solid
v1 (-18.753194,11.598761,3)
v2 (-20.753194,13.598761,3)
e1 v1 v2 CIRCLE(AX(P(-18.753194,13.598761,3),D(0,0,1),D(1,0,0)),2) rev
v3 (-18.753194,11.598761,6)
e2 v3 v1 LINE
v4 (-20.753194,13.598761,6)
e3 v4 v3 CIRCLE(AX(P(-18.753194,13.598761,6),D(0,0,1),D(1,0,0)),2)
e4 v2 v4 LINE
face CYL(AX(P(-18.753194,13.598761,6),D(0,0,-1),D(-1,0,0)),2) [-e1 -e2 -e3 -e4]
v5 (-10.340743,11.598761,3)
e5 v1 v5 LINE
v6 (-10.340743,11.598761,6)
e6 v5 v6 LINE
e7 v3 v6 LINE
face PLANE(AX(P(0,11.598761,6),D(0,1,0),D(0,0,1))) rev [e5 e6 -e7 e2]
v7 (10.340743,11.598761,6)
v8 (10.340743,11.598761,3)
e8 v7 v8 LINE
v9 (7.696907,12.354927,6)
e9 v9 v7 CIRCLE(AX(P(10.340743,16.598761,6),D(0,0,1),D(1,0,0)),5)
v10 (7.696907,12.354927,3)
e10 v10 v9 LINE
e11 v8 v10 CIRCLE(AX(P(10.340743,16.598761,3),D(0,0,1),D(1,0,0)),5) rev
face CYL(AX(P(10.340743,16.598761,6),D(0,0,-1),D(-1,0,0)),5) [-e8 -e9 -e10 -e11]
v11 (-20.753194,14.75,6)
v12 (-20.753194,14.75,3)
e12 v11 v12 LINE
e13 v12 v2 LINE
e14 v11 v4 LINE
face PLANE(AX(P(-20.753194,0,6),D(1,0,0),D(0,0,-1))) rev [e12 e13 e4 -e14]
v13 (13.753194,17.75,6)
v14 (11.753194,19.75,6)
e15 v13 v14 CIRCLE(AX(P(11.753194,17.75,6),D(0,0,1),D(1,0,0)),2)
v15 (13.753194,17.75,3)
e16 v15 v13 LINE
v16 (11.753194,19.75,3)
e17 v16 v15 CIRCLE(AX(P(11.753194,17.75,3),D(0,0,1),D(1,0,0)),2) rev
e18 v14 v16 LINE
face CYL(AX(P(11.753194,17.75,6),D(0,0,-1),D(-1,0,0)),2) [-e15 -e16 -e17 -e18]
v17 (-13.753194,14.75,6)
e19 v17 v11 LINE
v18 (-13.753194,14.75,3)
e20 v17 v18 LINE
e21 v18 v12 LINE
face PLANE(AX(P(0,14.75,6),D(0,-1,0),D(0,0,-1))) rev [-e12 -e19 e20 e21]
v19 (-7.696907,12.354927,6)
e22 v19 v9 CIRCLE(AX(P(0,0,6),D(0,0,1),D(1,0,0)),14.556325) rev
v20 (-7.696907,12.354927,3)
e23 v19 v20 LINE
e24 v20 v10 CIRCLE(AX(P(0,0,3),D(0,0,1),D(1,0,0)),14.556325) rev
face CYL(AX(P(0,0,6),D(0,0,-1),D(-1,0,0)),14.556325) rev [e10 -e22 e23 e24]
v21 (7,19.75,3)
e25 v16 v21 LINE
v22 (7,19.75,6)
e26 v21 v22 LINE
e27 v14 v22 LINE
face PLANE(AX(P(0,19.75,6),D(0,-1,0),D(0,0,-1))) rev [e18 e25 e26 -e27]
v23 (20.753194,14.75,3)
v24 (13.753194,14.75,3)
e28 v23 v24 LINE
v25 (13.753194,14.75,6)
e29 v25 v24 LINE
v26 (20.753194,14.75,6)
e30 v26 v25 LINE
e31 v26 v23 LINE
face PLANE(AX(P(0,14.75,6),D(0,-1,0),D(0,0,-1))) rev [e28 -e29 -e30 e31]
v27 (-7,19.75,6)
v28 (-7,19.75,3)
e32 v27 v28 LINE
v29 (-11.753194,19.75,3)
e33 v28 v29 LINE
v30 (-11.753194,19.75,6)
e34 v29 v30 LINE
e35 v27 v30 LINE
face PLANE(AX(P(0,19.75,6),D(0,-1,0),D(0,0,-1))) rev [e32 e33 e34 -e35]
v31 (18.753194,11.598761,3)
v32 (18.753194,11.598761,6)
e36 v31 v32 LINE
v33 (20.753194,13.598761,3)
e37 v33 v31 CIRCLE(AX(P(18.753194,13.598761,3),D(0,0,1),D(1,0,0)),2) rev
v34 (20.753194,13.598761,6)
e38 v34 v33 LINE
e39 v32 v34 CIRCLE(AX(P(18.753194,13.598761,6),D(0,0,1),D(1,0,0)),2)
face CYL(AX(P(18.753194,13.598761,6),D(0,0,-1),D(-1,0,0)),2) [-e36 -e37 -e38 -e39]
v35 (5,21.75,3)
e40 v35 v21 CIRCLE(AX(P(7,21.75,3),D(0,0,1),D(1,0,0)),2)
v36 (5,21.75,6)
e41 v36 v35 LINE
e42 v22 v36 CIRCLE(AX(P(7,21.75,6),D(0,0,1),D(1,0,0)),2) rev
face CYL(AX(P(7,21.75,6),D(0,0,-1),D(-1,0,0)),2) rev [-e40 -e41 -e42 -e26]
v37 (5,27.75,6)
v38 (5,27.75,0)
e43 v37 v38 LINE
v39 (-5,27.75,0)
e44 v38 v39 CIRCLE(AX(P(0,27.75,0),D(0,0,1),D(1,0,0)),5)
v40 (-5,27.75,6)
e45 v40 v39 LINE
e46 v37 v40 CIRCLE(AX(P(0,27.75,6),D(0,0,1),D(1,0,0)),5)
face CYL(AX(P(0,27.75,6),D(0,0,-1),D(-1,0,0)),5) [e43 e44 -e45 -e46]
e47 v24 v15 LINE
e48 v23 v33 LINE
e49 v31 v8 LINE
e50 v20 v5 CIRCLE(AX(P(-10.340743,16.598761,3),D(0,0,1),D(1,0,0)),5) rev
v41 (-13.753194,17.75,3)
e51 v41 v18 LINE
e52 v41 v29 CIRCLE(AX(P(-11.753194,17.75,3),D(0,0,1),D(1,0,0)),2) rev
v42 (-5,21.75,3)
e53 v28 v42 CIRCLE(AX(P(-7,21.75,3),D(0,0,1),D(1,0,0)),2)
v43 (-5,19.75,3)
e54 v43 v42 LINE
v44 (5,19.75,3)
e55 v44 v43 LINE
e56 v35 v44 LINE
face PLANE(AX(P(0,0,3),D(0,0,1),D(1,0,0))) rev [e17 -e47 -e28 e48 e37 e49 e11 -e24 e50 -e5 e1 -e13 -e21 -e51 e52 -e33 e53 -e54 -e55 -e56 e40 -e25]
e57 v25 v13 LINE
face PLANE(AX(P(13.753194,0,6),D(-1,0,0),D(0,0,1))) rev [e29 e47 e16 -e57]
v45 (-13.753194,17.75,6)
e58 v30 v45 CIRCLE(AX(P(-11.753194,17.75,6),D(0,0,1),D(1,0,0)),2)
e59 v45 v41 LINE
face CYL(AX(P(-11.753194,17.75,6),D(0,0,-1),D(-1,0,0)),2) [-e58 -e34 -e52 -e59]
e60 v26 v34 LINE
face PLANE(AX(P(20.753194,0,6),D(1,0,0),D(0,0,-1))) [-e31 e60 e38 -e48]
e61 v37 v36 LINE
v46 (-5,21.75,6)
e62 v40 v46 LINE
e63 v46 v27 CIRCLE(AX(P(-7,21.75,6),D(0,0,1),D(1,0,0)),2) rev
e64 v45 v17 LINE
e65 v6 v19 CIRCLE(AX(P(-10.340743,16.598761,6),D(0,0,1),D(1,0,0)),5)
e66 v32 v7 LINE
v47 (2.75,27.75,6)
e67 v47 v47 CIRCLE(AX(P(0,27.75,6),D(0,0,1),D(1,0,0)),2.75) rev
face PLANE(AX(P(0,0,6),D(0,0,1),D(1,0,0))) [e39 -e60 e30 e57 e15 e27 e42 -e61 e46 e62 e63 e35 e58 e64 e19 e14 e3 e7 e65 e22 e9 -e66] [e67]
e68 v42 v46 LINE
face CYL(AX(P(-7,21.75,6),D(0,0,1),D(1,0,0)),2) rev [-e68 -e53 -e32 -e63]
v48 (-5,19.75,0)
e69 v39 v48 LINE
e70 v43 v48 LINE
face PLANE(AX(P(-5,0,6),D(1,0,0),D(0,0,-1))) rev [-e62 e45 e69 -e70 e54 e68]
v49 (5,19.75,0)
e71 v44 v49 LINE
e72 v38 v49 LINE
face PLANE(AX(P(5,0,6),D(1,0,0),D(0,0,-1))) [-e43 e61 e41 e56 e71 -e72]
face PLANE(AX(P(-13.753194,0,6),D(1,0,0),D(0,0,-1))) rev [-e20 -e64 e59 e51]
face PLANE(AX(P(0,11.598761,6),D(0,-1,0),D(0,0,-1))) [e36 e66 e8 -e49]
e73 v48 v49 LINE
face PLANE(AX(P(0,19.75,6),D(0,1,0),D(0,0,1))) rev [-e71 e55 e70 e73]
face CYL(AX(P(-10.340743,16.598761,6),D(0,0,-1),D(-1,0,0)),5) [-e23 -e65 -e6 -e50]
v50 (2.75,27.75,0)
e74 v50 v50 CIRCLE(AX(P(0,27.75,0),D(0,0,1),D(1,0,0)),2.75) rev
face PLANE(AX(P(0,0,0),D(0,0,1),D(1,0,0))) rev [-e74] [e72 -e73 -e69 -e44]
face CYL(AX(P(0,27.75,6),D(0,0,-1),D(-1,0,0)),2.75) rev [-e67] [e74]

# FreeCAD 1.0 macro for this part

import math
import FreeCAD as App
import Part
import Sketcher
from FreeCAD import Vector
Q = App.Units.Quantity


def edges_at(feature, points):
    """Names of the edges that pass closest to the given points."""
    edges = feature.Shape.Edges
    near = lambda p: min(range(len(edges)), key=lambda i: edges[i].distToShape(Part.Vertex(*p))[0])
    return sorted({f"Edge{near(p) + 1}" for p in points})

doc = App.newDocument("Part")
body = doc.addObject("PartDesign::Body", "Body")

# Sketch on XY plane
sketch1 = body.newObject("Sketcher::SketchObject", "Sketch")
sketch1.AttachmentSupport = (doc.getObject("XY_Plane"), [""])
sketch1.MapMode = "FlatFace"
sketch1.addGeometry([
    Part.ArcOfCircle(Part.Circle(Vector(0, 27.8, 0), Vector(0, 0, 1), 5), math.radians(0), math.radians(180)),  # 0
    Part.LineSegment(Vector(-5, 27.8, 0), Vector(-5, 19.8, 0)),  # 1
    Part.LineSegment(Vector(-5, 19.8, 0), Vector(5, 19.8, 0)),  # 2
    Part.LineSegment(Vector(5, 19.8, 0), Vector(5, 27.8, 0)),  # 3
    Part.Circle(Vector(0, 27.8, 0), Vector(0, 0, 1), 2.8),  # 4
], False)
sketch1.addConstraint([
    Sketcher.Constraint("Tangent", 0, 2, 1, 1),
    Sketcher.Constraint("Coincident", 1, 2, 2, 1),
    Sketcher.Constraint("Coincident", 2, 2, 3, 1),
    Sketcher.Constraint("Tangent", 3, 2, 0, 1),
    Sketcher.Constraint("Vertical", 1),
    Sketcher.Constraint("Horizontal", 2),
    Sketcher.Constraint("Vertical", 3),
    Sketcher.Constraint("Coincident", 4, 3, 0, 3),
    Sketcher.Constraint("PointOnObject", 0, 3, -2),
    Sketcher.Constraint("Radius", 0, Q("5 mm")),
    Sketcher.Constraint("Diameter", 4, Q("5.5 mm")),
    Sketcher.Constraint("DistanceY", 1, 2, 1, 1, Q("8 mm")),
    Sketcher.Constraint("DistanceY", -1, 1, 0, 3, Q("27.75 mm")),
])
pad1 = body.newObject("PartDesign::Pad", "Pad")
pad1.Profile = sketch1
pad1.Length = 6

# Sketch on XY plane
sketch2 = body.newObject("Sketcher::SketchObject", "Sketch001")
sketch2.AttachmentSupport = (doc.getObject("XY_Plane"), [""])
sketch2.MapMode = "FlatFace"
sketch2.AttachmentOffset = App.Placement(Vector(0, 0, 3), App.Rotation())
sketch2.addGeometry([
    Part.LineSegment(Vector(-13.8, 19.8, 0), Vector(-13.8, 14.8, 0)),  # 0
    Part.LineSegment(Vector(-13.8, 14.8, 0), Vector(-20.8, 14.8, 0)),  # 1
    Part.LineSegment(Vector(-20.8, 14.8, 0), Vector(-20.8, 11.6, 0)),  # 2
    Part.LineSegment(Vector(-20.8, 11.6, 0), Vector(-8.8, 11.6, 0)),  # 3
    Part.ArcOfCircle(Part.Circle(Vector(0, 0, 0), Vector(0, 0, 1), 14.6), math.radians(53), math.radians(127)),  # 4
    Part.LineSegment(Vector(8.8, 11.6, 0), Vector(20.8, 11.6, 0)),  # 5
    Part.LineSegment(Vector(20.8, 11.6, 0), Vector(20.8, 14.8, 0)),  # 6
    Part.LineSegment(Vector(20.8, 14.8, 0), Vector(13.8, 14.8, 0)),  # 7
    Part.LineSegment(Vector(13.8, 14.8, 0), Vector(13.8, 19.8, 0)),  # 8
    Part.LineSegment(Vector(13.8, 19.8, 0), Vector(-13.8, 19.8, 0)),  # 9
], False)
sketch2.addConstraint([
    Sketcher.Constraint("Coincident", 0, 2, 1, 1),
    Sketcher.Constraint("Coincident", 1, 2, 2, 1),
    Sketcher.Constraint("Coincident", 2, 2, 3, 1),
    Sketcher.Constraint("Coincident", 3, 2, 4, 2),
    Sketcher.Constraint("Coincident", 4, 1, 5, 1),
    Sketcher.Constraint("Coincident", 5, 2, 6, 1),
    Sketcher.Constraint("Coincident", 6, 2, 7, 1),
    Sketcher.Constraint("Coincident", 7, 2, 8, 1),
    Sketcher.Constraint("Coincident", 8, 2, 9, 1),
    Sketcher.Constraint("Coincident", 9, 2, 0, 1),
    Sketcher.Constraint("Vertical", 0),
    Sketcher.Constraint("Horizontal", 1),
    Sketcher.Constraint("Vertical", 2),
    Sketcher.Constraint("Horizontal", 3),
    Sketcher.Constraint("Horizontal", 5),
    Sketcher.Constraint("Vertical", 6),
    Sketcher.Constraint("Horizontal", 7),
    Sketcher.Constraint("Vertical", 8),
    Sketcher.Constraint("Horizontal", 9),
    Sketcher.Constraint("Coincident", 4, 3, -1, 1),
    Sketcher.Constraint("Symmetric", 2, 2, 5, 2, -2),
    Sketcher.Constraint("Symmetric", 0, 2, 7, 2, -2),
    Sketcher.Constraint("DistanceX", 1, 2, 1, 1, Q("7 mm")),
    Sketcher.Constraint("DistanceY", 0, 2, 0, 1, Q("5 mm")),
    Sketcher.Constraint("DistanceY", -1, 1, 0, 2, Q("14.75 mm")),
    Sketcher.Constraint("Radius", 4, Q("14.556325 mm")),
    Sketcher.Constraint("DistanceX", 9, 2, 9, 1, Q("27.506388 mm")),
    Sketcher.Constraint("DistanceY", 2, 2, 2, 1, Q("3.151239 mm")),
])
pad2 = body.newObject("PartDesign::Pad", "Pad001")
pad2.Profile = sketch2
pad2.Length = 3
doc.recompute()

fillet = body.newObject("PartDesign::Fillet", "Fillet")
fillet.Base = (pad2, edges_at(pad2, [
    (5, 19.75, 4.5),
    (-5, 19.75, 4.5),
    (-20.753, 11.599, 4.5),
    (20.753, 11.599, 4.5),
    (13.753, 19.75, 4.5),
    (-13.753, 19.75, 4.5),
]))
fillet.Radius = 2
doc.recompute()

fillet2 = body.newObject("PartDesign::Fillet", "Fillet001")
fillet2.Base = (fillet, edges_at(fillet, [(-8.795, 11.599, 4.5), (8.795, 11.599, 4.5)]))
fillet2.Radius = 5

doc.recompute()
